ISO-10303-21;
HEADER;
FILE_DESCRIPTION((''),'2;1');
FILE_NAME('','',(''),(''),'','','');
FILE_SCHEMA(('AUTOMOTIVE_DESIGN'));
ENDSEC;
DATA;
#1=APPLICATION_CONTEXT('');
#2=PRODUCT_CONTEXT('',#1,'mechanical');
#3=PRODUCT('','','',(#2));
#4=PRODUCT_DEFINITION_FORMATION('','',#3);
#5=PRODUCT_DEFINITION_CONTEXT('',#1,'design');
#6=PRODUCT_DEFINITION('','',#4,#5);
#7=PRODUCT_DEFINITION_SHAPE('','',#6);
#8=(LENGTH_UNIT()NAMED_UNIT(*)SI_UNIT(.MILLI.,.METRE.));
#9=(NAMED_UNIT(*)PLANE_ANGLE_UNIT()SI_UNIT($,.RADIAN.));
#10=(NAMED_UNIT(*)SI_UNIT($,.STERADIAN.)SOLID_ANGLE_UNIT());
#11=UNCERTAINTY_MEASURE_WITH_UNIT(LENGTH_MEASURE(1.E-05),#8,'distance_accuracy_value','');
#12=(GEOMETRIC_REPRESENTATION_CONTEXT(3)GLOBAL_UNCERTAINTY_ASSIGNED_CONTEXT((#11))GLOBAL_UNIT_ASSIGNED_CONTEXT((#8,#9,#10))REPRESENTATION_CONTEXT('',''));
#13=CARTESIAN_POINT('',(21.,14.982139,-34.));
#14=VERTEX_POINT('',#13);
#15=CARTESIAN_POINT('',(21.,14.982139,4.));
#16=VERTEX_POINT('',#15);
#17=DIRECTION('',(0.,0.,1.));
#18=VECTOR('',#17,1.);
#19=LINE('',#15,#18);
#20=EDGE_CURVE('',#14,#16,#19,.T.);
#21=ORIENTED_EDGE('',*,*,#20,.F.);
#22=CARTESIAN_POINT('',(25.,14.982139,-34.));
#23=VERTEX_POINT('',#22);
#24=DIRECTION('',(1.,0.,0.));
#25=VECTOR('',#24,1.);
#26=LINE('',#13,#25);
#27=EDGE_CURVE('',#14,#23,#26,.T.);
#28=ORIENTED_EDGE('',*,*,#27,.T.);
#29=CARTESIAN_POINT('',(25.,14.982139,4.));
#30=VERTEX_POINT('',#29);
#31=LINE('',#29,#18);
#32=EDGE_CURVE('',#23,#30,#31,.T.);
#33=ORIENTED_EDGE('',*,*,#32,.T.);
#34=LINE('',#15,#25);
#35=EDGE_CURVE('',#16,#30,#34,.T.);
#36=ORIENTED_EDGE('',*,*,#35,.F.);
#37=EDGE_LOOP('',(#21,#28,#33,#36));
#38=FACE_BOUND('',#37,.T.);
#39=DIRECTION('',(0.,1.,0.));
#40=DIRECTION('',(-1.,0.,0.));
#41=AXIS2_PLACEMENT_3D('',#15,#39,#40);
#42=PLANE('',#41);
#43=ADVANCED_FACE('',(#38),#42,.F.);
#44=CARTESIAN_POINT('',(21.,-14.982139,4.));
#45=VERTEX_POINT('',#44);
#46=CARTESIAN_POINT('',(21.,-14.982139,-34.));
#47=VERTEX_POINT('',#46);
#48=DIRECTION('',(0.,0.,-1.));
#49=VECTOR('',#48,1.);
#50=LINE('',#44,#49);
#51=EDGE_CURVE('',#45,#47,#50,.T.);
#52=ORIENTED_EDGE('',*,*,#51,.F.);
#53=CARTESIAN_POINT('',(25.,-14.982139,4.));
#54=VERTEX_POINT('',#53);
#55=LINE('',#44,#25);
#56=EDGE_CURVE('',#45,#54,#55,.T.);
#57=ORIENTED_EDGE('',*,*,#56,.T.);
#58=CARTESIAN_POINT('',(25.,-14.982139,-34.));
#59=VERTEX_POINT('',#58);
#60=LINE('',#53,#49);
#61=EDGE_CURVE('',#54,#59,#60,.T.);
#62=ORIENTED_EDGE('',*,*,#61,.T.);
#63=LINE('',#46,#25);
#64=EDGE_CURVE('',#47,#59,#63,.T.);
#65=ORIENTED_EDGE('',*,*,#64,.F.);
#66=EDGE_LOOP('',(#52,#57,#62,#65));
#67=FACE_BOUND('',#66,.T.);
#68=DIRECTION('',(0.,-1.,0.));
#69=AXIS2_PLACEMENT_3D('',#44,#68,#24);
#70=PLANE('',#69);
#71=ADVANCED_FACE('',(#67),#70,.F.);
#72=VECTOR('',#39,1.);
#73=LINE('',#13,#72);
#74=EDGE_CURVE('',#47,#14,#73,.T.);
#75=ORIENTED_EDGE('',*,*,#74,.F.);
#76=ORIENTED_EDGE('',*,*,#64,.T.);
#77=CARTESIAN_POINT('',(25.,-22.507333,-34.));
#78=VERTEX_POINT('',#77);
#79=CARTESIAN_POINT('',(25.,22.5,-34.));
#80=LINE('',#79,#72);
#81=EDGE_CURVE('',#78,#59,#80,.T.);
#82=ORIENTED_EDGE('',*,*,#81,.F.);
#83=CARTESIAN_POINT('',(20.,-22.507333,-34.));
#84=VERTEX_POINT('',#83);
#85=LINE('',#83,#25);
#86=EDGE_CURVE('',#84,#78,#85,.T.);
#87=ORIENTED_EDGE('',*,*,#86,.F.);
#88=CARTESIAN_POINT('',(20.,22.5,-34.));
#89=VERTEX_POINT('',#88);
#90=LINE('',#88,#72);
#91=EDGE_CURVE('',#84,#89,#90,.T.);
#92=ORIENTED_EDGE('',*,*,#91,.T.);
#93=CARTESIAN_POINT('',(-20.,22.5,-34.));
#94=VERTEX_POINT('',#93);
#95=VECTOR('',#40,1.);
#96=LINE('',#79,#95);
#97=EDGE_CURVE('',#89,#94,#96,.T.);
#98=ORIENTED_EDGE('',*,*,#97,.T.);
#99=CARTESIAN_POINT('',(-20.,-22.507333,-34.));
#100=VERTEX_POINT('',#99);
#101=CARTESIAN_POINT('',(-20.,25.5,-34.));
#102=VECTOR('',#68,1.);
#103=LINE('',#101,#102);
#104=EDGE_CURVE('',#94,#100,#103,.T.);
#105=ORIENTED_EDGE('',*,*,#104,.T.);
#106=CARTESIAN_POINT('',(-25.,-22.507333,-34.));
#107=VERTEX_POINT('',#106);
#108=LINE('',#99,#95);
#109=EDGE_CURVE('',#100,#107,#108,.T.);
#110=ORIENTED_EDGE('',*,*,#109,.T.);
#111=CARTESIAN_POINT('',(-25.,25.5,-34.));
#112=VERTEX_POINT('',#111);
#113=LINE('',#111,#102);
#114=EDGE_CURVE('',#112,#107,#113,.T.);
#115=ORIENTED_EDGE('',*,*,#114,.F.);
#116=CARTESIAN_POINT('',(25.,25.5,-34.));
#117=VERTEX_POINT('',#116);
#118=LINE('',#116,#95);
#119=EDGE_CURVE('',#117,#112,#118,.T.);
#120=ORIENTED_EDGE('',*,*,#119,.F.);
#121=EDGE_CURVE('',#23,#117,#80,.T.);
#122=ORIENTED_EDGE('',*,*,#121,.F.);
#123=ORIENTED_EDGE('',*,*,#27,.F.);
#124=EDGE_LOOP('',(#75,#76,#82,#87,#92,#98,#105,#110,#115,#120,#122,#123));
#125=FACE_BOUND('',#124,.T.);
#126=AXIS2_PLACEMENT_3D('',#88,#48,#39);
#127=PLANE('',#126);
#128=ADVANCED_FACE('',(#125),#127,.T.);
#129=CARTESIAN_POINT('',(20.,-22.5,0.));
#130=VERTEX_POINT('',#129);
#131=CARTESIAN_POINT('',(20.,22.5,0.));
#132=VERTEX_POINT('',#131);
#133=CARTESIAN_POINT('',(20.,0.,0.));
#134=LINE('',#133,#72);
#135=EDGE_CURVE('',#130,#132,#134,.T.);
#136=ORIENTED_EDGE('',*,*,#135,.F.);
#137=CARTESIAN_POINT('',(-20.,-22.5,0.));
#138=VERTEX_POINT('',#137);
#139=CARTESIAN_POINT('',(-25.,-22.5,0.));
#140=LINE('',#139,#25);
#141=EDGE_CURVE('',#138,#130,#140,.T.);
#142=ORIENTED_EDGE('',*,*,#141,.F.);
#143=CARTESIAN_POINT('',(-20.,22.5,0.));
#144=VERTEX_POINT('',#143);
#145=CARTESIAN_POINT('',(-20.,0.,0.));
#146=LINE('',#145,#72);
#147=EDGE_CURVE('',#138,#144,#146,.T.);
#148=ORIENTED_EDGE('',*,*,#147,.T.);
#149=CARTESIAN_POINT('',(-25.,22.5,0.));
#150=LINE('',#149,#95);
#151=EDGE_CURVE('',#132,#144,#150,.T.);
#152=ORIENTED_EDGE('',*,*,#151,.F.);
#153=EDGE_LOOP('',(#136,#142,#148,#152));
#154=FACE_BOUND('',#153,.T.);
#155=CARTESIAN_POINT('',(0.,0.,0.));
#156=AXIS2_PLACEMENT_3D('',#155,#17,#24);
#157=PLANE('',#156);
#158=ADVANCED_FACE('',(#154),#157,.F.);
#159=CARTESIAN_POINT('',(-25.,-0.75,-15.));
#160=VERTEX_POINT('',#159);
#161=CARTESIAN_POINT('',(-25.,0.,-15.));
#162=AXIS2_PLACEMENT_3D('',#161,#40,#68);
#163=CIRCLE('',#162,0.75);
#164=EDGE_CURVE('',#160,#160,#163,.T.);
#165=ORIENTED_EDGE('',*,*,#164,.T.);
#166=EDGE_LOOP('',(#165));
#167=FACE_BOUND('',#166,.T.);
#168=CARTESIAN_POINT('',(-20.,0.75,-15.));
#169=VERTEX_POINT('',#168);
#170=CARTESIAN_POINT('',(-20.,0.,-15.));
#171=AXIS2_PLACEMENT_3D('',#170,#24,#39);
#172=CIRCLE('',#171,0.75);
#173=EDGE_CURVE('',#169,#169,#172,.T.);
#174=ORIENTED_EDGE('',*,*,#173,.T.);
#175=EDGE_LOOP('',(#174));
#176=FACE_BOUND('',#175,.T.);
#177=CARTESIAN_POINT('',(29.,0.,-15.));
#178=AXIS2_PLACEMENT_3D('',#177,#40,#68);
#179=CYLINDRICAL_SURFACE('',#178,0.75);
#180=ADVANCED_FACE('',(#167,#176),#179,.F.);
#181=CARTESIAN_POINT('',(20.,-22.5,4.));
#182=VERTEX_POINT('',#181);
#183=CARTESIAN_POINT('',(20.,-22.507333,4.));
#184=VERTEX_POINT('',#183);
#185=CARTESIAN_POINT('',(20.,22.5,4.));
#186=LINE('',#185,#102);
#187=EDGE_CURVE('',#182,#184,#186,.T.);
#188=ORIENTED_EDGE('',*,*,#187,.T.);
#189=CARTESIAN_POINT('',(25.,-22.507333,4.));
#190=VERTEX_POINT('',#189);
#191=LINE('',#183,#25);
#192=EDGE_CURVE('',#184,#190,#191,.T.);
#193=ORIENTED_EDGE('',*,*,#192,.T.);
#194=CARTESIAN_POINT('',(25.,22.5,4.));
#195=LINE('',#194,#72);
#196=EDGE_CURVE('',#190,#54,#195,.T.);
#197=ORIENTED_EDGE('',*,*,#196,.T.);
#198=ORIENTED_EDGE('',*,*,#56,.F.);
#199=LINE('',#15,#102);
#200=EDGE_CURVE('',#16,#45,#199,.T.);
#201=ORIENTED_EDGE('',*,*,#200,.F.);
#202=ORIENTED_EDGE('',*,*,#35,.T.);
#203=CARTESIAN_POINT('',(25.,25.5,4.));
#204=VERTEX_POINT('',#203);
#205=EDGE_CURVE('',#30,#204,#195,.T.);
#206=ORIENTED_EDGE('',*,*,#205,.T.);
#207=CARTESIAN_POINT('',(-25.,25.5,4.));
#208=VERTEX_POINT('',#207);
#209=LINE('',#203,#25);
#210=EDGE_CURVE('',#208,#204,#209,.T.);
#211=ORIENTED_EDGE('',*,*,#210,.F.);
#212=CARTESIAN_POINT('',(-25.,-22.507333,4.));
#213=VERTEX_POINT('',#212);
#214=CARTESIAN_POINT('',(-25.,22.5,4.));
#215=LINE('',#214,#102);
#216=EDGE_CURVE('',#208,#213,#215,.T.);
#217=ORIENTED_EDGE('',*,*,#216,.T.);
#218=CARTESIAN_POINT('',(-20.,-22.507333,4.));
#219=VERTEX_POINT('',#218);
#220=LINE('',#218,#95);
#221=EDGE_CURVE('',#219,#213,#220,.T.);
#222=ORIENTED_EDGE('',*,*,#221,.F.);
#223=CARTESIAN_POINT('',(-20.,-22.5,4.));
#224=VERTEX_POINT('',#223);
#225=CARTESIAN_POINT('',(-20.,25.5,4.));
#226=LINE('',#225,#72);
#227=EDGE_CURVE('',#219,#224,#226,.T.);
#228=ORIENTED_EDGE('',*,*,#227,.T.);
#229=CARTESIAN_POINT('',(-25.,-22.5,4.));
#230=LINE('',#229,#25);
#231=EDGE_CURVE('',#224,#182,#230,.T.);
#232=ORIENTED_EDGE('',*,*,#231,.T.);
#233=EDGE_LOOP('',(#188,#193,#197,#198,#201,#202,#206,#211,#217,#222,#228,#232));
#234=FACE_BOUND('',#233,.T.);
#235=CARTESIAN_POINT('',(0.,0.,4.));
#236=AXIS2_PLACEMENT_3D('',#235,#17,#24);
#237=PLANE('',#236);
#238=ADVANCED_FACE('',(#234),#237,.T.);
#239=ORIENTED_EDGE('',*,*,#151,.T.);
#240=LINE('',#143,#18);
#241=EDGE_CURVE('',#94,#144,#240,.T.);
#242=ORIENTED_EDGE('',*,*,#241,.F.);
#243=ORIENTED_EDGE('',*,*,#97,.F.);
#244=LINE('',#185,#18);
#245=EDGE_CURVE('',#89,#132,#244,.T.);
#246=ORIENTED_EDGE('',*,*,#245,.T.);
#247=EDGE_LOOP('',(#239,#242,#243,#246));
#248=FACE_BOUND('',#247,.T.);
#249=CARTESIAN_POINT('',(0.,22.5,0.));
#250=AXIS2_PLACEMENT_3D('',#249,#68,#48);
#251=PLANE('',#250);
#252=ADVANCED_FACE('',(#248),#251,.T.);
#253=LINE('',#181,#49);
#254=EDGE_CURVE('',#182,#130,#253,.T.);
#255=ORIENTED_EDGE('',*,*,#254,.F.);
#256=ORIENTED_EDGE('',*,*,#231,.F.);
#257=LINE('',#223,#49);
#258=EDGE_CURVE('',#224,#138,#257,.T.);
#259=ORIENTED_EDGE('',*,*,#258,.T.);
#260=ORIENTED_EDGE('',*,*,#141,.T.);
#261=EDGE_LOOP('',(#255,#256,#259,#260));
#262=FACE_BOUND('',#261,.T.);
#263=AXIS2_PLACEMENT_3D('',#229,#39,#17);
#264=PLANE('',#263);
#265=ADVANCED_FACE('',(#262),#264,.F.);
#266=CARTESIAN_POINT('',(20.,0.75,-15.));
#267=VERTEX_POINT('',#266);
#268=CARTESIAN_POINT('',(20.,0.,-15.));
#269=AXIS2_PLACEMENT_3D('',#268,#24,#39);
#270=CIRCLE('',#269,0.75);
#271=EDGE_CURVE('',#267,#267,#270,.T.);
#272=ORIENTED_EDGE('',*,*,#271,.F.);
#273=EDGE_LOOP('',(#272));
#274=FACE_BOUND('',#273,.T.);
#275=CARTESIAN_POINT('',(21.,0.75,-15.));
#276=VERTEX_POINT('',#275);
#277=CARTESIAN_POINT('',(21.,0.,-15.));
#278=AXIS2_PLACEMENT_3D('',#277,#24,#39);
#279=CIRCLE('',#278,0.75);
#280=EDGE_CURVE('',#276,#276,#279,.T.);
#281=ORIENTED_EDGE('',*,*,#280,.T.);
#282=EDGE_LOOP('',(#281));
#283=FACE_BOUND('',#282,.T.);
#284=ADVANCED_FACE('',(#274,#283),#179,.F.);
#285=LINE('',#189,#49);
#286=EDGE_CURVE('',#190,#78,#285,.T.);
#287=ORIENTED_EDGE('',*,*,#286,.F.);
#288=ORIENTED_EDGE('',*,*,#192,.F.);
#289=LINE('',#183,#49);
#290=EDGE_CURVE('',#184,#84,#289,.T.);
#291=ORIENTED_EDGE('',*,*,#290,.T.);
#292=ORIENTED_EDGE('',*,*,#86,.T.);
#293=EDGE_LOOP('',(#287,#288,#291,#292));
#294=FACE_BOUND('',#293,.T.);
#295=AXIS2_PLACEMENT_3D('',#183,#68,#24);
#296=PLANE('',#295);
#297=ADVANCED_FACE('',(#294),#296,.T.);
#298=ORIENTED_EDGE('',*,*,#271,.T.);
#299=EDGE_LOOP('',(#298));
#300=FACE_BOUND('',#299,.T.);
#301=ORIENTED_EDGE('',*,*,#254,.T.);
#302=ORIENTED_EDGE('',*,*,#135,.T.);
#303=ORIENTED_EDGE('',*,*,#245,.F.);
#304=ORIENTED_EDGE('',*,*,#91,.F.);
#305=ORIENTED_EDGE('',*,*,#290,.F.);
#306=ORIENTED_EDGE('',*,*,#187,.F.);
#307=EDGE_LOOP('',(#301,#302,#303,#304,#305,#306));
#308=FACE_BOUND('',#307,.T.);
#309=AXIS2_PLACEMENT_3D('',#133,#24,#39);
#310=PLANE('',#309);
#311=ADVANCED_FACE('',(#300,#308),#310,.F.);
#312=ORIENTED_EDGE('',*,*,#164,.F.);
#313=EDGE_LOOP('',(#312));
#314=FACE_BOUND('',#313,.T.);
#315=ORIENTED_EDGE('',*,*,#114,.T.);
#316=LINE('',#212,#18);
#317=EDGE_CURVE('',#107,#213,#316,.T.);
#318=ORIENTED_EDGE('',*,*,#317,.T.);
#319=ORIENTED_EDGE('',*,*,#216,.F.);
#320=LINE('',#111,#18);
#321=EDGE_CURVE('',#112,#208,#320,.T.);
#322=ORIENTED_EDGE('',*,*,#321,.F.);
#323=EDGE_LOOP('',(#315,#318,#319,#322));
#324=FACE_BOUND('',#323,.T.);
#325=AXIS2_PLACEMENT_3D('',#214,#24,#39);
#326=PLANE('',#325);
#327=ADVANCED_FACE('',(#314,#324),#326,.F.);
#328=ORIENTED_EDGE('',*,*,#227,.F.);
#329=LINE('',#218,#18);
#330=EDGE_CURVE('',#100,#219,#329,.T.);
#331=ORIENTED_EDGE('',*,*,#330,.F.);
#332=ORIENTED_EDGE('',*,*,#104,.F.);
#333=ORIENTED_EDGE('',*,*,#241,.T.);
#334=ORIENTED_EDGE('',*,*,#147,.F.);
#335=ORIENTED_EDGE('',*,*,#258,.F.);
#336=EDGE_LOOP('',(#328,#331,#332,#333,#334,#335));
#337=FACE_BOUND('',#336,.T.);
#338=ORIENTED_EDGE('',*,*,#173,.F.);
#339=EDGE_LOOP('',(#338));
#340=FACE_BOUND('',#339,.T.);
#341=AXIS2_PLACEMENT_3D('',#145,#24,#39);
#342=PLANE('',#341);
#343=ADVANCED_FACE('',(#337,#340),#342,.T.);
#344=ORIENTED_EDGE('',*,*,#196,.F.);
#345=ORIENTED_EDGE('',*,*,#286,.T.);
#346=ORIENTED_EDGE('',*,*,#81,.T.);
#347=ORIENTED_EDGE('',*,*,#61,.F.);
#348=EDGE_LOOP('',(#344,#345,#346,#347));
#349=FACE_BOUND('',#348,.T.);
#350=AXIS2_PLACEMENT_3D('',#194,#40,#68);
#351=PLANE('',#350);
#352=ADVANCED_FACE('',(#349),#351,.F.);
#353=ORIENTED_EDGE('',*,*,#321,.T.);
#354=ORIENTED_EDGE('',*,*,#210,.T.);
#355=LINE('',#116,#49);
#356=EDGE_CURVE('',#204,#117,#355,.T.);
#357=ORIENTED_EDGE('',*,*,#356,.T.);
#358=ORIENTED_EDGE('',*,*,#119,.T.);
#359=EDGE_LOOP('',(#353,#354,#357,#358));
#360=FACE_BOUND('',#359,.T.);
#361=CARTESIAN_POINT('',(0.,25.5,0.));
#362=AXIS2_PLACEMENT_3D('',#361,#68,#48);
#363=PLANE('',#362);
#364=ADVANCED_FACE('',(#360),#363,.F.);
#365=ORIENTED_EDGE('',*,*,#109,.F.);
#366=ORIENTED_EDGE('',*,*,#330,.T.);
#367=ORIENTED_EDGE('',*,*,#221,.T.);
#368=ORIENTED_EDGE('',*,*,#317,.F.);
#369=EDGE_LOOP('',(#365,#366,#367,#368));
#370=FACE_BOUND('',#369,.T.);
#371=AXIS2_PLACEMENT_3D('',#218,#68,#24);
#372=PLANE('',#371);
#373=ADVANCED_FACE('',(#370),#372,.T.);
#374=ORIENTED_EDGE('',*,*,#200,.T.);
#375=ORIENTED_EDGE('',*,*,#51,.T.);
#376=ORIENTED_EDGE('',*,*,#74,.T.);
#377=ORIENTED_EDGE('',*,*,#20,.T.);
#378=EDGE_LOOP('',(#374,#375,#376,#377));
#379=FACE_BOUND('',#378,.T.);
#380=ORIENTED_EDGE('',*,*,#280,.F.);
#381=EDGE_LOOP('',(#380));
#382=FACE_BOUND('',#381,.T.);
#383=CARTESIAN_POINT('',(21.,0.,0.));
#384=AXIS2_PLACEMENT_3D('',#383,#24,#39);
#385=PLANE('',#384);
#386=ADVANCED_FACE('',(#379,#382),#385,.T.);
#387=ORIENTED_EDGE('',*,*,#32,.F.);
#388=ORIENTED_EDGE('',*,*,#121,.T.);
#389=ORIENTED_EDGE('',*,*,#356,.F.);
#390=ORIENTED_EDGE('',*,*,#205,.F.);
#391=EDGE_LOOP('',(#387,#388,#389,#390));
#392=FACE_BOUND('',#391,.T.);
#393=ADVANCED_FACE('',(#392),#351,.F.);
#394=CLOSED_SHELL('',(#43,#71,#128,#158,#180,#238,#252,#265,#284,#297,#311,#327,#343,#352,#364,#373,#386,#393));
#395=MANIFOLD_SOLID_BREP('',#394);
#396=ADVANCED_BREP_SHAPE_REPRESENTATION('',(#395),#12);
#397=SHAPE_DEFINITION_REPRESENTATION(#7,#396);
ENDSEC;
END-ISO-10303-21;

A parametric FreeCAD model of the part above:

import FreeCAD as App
import Part
import Sketcher

V = App.Vector
Q = App.Units.Quantity

doc = App.newDocument("Part")
body = doc.addObject("PartDesign::Body", "Body")

sketch1 = doc.addObject("Sketcher::SketchObject", "Sketch")
body.addObject(sketch1)
sketch1.AttachmentSupport = (doc.XY_Plane, [""])
sketch1.MapMode = "FlatFace"
sketch1.addGeometry(Part.LineSegment(V(-25, 22, 0), V(-25, -22, 0)), False)
sketch1.addGeometry(Part.LineSegment(V(-25, -22, 0), V(25, -22, 0)), False)
sketch1.addGeometry(Part.LineSegment(V(25, -22, 0), V(25, 22, 0)), False)
sketch1.addGeometry(Part.LineSegment(V(25, 22, 0), V(-25, 22, 0)), False)
sketch1.addConstraint(Sketcher.Constraint("Coincident", 0, 2, 1, 1))
sketch1.addConstraint(Sketcher.Constraint("Coincident", 1, 2, 2, 1))
sketch1.addConstraint(Sketcher.Constraint("Coincident", 2, 2, 3, 1))
sketch1.addConstraint(Sketcher.Constraint("Coincident", 3, 2, 0, 1))
sketch1.addConstraint(Sketcher.Constraint("Vertical", 0))
sketch1.addConstraint(Sketcher.Constraint("Horizontal", 1))
sketch1.addConstraint(Sketcher.Constraint("Vertical", 2))
sketch1.addConstraint(Sketcher.Constraint("Horizontal", 3))
sketch1.addConstraint(Sketcher.Constraint("Symmetric", 0, 2, 2, 2, -1, 1))
sketch1.addConstraint(Sketcher.Constraint("DistanceX", 1, 1, 1, 2, Q("50 mm")))
sketch1.addConstraint(Sketcher.Constraint("DistanceY", 0, 2, 0, 1, Q("45 mm")))
pad1 = doc.addObject("PartDesign::Pad", "Pad")
body.addObject(pad1)
pad1.Profile = sketch1
pad1.Length = 4

sketch2 = doc.addObject("Sketcher::SketchObject", "Sketch001")
body.addObject(sketch2)
sketch2.AttachmentSupport = (doc.YZ_Plane, [""])
sketch2.MapMode = "FlatFace"
sketch2.AttachmentOffset = App.Placement(V(0, 0, 25), App.Rotation())
sketch2.addGeometry(Part.LineSegment(V(22, 4, 0), V(-23, 4, 0)), False)
sketch2.addGeometry(Part.LineSegment(V(-23, 4, 0), V(-23, -34, 0)), False)
sketch2.addGeometry(Part.LineSegment(V(-23, -34, 0), V(22, -34, 0)), False)
sketch2.addGeometry(Part.LineSegment(V(22, -34, 0), V(22, 4, 0)), False)
sketch2.addConstraint(Sketcher.Constraint("Coincident", 0, 2, 1, 1))
sketch2.addConstraint(Sketcher.Constraint("Coincident", 1, 2, 2, 1))
sketch2.addConstraint(Sketcher.Constraint("Coincident", 2, 2, 3, 1))
sketch2.addConstraint(Sketcher.Constraint("Coincident", 3, 2, 0, 1))
sketch2.addConstraint(Sketcher.Constraint("Horizontal", 0))
sketch2.addConstraint(Sketcher.Constraint("Vertical", 1))
sketch2.addConstraint(Sketcher.Constraint("Horizontal", 2))
sketch2.addConstraint(Sketcher.Constraint("Vertical", 3))
sketch2.addConstraint(Sketcher.Constraint("DistanceY", 1, 2, 1, 1, Q("38 mm")))
sketch2.addConstraint(Sketcher.Constraint("DistanceY", -1, 1, 0, 2, Q("4 mm")))
sketch2.addConstraint(Sketcher.Constraint("DistanceX", -1, 1, 2, 2, Q("22.5 mm")))
sketch2.addConstraint(Sketcher.Constraint("DistanceX", 0, 2, 0, 1, Q("45.007333 mm")))
pad2 = doc.addObject("PartDesign::Pad", "Pad001")
body.addObject(pad2)
pad2.Profile = sketch2
pad2.Length = 5
pad2.Reversed = True

sketch3 = doc.addObject("Sketcher::SketchObject", "Sketch002")
body.addObject(sketch3)
sketch3.AttachmentSupport = (doc.XZ_Plane, [""])
sketch3.MapMode = "FlatFace"
sketch3.AttachmentOffset = App.Placement(V(0, 0, -22.5), App.Rotation())
sketch3.addGeometry(Part.LineSegment(V(-25, -34, 0), V(-25, 4, 0)), False)
sketch3.addGeometry(Part.LineSegment(V(-25, 4, 0), V(25, 4, 0)), False)
sketch3.addGeometry(Part.LineSegment(V(25, 4, 0), V(25, -34, 0)), False)
sketch3.addGeometry(Part.LineSegment(V(25, -34, 0), V(-25, -34, 0)), False)
sketch3.addConstraint(Sketcher.Constraint("Coincident", 0, 2, 1, 1))
sketch3.addConstraint(Sketcher.Constraint("Coincident", 1, 2, 2, 1))
sketch3.addConstraint(Sketcher.Constraint("Coincident", 2, 2, 3, 1))
sketch3.addConstraint(Sketcher.Constraint("Coincident", 3, 2, 0, 1))
sketch3.addConstraint(Sketcher.Constraint("Vertical", 0))
sketch3.addConstraint(Sketcher.Constraint("Horizontal", 1))
sketch3.addConstraint(Sketcher.Constraint("Vertical", 2))
sketch3.addConstraint(Sketcher.Constraint("Horizontal", 3))
sketch3.addConstraint(Sketcher.Constraint("DistanceX", 1, 1, 1, 2, Q("50 mm")))
sketch3.addConstraint(Sketcher.Constraint("DistanceY", 0, 1, 0, 2, Q("38 mm")))
sketch3.addConstraint(Sketcher.Constraint("DistanceX", 0, 2, -1, 1, Q("25 mm")))
sketch3.addConstraint(Sketcher.Constraint("DistanceY", -1, 1, 0, 2, Q("4 mm")))
pad3 = doc.addObject("PartDesign::Pad", "Pad002")
body.addObject(pad3)
pad3.Profile = sketch3
pad3.Length = 3
pad3.Reversed = True

sketch4 = doc.addObject("Sketcher::SketchObject", "Sketch003")
body.addObject(sketch4)
sketch4.AttachmentSupport = (doc.YZ_Plane, [""])
sketch4.MapMode = "FlatFace"
sketch4.AttachmentOffset = App.Placement(V(0, 0, -25), App.Rotation())
sketch4.addGeometry(Part.LineSegment(V(26, -34, 0), V(-23, -34, 0)), False)
sketch4.addGeometry(Part.LineSegment(V(-23, -34, 0), V(-23, 4, 0)), False)
sketch4.addGeometry(Part.LineSegment(V(-23, 4, 0), V(26, 4, 0)), False)
sketch4.addGeometry(Part.LineSegment(V(26, 4, 0), V(26, -34, 0)), False)
sketch4.addConstraint(Sketcher.Constraint("Coincident", 0, 2, 1, 1))
sketch4.addConstraint(Sketcher.Constraint("Coincident", 1, 2, 2, 1))
sketch4.addConstraint(Sketcher.Constraint("Coincident", 2, 2, 3, 1))
sketch4.addConstraint(Sketcher.Constraint("Coincident", 3, 2, 0, 1))
sketch4.addConstraint(Sketcher.Constraint("Horizontal", 0))
sketch4.addConstraint(Sketcher.Constraint("Vertical", 1))
sketch4.addConstraint(Sketcher.Constraint("Horizontal", 2))
sketch4.addConstraint(Sketcher.Constraint("Vertical", 3))
sketch4.addConstraint(Sketcher.Constraint("DistanceY", 1, 1, 1, 2, Q("38 mm")))
sketch4.addConstraint(Sketcher.Constraint("DistanceY", 0, 2, -1, 1, Q("34 mm")))
sketch4.addConstraint(Sketcher.Constraint("DistanceX", -1, 1, 2, 2, Q("25.5 mm")))
sketch4.addConstraint(Sketcher.Constraint("DistanceX", 0, 2, 0, 1, Q("48.007333 mm")))
pad4 = doc.addObject("PartDesign::Pad", "Pad003")
body.addObject(pad4)
pad4.Profile = sketch4
pad4.Length = 5

sketch5 = doc.addObject("Sketcher::SketchObject", "Sketch004")
body.addObject(sketch5)
sketch5.AttachmentSupport = (doc.YZ_Plane, [""])
sketch5.MapMode = "FlatFace"
sketch5.AttachmentOffset = App.Placement(V(0, 0, 25), App.Rotation())
sketch5.addGeometry(Part.LineSegment(V(15, 4, 0), V(-15, 4, 0)), False)
sketch5.addGeometry(Part.LineSegment(V(-15, 4, 0), V(-15, -34, 0)), False)
sketch5.addGeometry(Part.LineSegment(V(-15, -34, 0), V(15, -34, 0)), False)
sketch5.addGeometry(Part.LineSegment(V(15, -34, 0), V(15, 4, 0)), False)
sketch5.addConstraint(Sketcher.Constraint("Coincident", 0, 2, 1, 1))
sketch5.addConstraint(Sketcher.Constraint("Coincident", 1, 2, 2, 1))
sketch5.addConstraint(Sketcher.Constraint("Coincident", 2, 2, 3, 1))
sketch5.addConstraint(Sketcher.Constraint("Coincident", 3, 2, 0, 1))
sketch5.addConstraint(Sketcher.Constraint("Horizontal", 0))
sketch5.addConstraint(Sketcher.Constraint("Vertical", 1))
sketch5.addConstraint(Sketcher.Constraint("Horizontal", 2))
sketch5.addConstraint(Sketcher.Constraint("Vertical", 3))
sketch5.addConstraint(Sketcher.Constraint("DistanceY", 1, 2, 1, 1, Q("38 mm")))
sketch5.addConstraint(Sketcher.Constraint("DistanceY", -1, 1, 0, 2, Q("4 mm")))
sketch5.addConstraint(Sketcher.Constraint("DistanceX", 0, 2, 0, 1, Q("29.964278 mm")))
sketch5.addConstraint(Sketcher.Constraint("DistanceX", 0, 2, -1, 1, Q("14.982139 mm")))
pocket1 = doc.addObject("PartDesign::Pocket", "Pocket")
body.addObject(pocket1)
pocket1.Profile = sketch5
pocket1.Length = 4

sketch6 = doc.addObject("Sketcher::SketchObject", "Sketch005")
body.addObject(sketch6)
sketch6.AttachmentSupport = (doc.YZ_Plane, [""])
sketch6.MapMode = "FlatFace"
sketch6.AttachmentOffset = App.Placement(V(0, 0, -25), App.Rotation())
sketch6.addGeometry(Part.Circle(V(0, -15, 0), V(0, 0, 1), 0.8), False)
sketch6.addConstraint(Sketcher.Constraint("PointOnObject", 0, 3, -2))
sketch6.addConstraint(Sketcher.Constraint("Diameter", 0, Q("1.5 mm")))
sketch6.addConstraint(Sketcher.Constraint("DistanceY", 0, 3, -1, 1, Q("15 mm")))
pocket2 = doc.addObject("PartDesign::Pocket", "Pocket001")
body.addObject(pocket2)
pocket2.Profile = sketch6
pocket2.Length = 54
pocket2.Reversed = True

doc.recompute()
